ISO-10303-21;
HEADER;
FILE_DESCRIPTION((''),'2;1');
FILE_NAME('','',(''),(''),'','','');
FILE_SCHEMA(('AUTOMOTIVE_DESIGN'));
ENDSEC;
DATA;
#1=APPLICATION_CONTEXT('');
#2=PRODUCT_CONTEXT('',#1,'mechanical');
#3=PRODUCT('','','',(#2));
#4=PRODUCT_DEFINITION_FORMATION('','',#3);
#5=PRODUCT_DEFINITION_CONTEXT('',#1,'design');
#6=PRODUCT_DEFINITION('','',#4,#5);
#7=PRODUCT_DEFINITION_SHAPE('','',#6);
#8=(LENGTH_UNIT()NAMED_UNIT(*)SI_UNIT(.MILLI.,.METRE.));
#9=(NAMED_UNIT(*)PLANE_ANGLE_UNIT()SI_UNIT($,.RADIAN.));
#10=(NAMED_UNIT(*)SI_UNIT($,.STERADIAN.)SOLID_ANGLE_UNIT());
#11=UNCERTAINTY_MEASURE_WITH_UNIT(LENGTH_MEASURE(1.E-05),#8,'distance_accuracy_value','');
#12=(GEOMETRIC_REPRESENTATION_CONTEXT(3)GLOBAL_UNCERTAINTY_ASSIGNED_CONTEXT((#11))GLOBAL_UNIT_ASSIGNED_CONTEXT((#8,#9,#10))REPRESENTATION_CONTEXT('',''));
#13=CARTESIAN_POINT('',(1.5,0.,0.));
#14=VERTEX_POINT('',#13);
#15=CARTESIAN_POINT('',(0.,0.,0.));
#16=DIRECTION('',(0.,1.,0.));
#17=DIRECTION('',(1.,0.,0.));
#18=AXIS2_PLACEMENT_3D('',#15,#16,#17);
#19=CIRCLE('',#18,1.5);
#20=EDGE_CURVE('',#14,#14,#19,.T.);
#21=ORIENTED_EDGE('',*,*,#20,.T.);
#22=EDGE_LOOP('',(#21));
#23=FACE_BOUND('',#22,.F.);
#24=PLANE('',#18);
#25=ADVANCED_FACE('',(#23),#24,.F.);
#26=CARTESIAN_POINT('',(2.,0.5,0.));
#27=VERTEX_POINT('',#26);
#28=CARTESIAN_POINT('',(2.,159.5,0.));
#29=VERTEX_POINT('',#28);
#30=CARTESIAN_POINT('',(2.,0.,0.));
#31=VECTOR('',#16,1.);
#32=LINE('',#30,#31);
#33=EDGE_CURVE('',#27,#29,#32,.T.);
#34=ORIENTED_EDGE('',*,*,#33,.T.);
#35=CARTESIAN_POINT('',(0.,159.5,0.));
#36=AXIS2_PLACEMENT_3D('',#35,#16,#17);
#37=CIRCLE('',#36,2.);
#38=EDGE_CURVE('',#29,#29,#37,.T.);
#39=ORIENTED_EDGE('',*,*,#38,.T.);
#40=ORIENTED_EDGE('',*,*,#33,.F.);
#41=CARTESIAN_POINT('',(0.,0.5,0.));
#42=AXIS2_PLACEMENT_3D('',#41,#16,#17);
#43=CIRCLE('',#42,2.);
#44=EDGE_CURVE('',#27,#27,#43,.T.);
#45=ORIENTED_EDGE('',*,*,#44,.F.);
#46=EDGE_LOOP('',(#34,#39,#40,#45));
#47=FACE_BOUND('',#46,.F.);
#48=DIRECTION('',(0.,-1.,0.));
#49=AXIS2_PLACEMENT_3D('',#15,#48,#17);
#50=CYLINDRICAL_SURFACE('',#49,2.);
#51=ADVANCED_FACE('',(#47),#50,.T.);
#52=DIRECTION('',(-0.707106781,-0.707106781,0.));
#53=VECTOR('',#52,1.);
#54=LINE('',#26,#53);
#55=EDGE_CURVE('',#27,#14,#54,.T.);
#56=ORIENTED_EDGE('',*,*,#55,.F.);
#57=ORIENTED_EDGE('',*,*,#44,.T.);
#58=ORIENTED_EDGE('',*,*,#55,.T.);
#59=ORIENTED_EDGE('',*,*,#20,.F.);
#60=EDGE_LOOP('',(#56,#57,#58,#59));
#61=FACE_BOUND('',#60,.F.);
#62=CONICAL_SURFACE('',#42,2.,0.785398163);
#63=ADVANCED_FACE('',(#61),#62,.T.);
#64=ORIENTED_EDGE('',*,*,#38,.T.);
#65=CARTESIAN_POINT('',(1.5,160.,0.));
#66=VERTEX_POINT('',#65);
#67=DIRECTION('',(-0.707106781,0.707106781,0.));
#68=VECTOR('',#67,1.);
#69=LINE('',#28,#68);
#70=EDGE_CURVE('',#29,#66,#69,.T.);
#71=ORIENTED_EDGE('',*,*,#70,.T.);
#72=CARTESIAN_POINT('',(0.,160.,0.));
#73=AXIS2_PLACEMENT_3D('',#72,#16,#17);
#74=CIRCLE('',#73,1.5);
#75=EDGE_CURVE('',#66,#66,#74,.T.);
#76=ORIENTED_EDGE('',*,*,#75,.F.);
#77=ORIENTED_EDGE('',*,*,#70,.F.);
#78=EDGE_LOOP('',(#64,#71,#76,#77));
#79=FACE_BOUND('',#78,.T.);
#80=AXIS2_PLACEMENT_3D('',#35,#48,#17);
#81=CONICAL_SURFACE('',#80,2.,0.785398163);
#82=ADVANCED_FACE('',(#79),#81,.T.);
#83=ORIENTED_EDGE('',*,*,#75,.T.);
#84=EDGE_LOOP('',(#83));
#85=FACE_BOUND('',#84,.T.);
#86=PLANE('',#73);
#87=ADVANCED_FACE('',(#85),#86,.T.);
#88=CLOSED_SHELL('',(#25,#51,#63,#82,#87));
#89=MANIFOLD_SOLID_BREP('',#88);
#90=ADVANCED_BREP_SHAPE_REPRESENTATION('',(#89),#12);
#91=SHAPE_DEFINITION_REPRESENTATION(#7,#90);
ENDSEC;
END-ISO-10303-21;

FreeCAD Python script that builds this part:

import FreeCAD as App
import Part
import Sketcher

V = App.Vector
Q = App.Units.Quantity


def edges_at(feature, points):
    """Names of the edges that pass closest to the given points."""
    edges = feature.Shape.Edges
    near = lambda p: min(range(len(edges)), key=lambda i: edges[i].distToShape(Part.Vertex(*p))[0])
    return sorted({f"Edge{near(p) + 1}" for p in points})

doc = App.newDocument("Part")
params = doc.addObject("Spreadsheet::Sheet", "Params")
for row, (alias, value) in enumerate([
    ("sketch1_diameter", "4 mm"),
    ("pad1_length", "160 mm"),
    ("chamfer_size", "0.5 mm"),
], start=1):
    params.set(f"A{row}", alias)
    params.set(f"B{row}", "=" + value)
    params.setAlias(f"B{row}", alias)

body = doc.addObject("PartDesign::Body", "Body")

sketch1 = body.newObject("Sketcher::SketchObject", "Sketch")
sketch1.AttachmentSupport = (doc.getObject("XZ_Plane"), [""])
sketch1.MapMode = "FlatFace"
sketch1.addGeometry(Part.Circle(V(0, 0, 0), V(0, 0, 1), 2), False)
sketch1.addConstraint(Sketcher.Constraint("Coincident", 0, 3, -1, 1))
sketch1.addConstraint(Sketcher.Constraint("Diameter", 0, Q("4 mm")))
sketch1.setExpression("Constraints[1]", "Params.sketch1_diameter")
pad1 = body.newObject("PartDesign::Pad", "Pad")
pad1.Profile = sketch1
pad1.setExpression("Length", "Params.pad1_length")
pad1.Reversed = True
doc.recompute()

chamfer = body.newObject("PartDesign::Chamfer", "Chamfer")
chamfer.Base = (pad1, edges_at(pad1, [(-2, 0, 0), (-2, 160, 0)]))
chamfer.setExpression("Size", "Params.chamfer_size")

doc.recompute()
